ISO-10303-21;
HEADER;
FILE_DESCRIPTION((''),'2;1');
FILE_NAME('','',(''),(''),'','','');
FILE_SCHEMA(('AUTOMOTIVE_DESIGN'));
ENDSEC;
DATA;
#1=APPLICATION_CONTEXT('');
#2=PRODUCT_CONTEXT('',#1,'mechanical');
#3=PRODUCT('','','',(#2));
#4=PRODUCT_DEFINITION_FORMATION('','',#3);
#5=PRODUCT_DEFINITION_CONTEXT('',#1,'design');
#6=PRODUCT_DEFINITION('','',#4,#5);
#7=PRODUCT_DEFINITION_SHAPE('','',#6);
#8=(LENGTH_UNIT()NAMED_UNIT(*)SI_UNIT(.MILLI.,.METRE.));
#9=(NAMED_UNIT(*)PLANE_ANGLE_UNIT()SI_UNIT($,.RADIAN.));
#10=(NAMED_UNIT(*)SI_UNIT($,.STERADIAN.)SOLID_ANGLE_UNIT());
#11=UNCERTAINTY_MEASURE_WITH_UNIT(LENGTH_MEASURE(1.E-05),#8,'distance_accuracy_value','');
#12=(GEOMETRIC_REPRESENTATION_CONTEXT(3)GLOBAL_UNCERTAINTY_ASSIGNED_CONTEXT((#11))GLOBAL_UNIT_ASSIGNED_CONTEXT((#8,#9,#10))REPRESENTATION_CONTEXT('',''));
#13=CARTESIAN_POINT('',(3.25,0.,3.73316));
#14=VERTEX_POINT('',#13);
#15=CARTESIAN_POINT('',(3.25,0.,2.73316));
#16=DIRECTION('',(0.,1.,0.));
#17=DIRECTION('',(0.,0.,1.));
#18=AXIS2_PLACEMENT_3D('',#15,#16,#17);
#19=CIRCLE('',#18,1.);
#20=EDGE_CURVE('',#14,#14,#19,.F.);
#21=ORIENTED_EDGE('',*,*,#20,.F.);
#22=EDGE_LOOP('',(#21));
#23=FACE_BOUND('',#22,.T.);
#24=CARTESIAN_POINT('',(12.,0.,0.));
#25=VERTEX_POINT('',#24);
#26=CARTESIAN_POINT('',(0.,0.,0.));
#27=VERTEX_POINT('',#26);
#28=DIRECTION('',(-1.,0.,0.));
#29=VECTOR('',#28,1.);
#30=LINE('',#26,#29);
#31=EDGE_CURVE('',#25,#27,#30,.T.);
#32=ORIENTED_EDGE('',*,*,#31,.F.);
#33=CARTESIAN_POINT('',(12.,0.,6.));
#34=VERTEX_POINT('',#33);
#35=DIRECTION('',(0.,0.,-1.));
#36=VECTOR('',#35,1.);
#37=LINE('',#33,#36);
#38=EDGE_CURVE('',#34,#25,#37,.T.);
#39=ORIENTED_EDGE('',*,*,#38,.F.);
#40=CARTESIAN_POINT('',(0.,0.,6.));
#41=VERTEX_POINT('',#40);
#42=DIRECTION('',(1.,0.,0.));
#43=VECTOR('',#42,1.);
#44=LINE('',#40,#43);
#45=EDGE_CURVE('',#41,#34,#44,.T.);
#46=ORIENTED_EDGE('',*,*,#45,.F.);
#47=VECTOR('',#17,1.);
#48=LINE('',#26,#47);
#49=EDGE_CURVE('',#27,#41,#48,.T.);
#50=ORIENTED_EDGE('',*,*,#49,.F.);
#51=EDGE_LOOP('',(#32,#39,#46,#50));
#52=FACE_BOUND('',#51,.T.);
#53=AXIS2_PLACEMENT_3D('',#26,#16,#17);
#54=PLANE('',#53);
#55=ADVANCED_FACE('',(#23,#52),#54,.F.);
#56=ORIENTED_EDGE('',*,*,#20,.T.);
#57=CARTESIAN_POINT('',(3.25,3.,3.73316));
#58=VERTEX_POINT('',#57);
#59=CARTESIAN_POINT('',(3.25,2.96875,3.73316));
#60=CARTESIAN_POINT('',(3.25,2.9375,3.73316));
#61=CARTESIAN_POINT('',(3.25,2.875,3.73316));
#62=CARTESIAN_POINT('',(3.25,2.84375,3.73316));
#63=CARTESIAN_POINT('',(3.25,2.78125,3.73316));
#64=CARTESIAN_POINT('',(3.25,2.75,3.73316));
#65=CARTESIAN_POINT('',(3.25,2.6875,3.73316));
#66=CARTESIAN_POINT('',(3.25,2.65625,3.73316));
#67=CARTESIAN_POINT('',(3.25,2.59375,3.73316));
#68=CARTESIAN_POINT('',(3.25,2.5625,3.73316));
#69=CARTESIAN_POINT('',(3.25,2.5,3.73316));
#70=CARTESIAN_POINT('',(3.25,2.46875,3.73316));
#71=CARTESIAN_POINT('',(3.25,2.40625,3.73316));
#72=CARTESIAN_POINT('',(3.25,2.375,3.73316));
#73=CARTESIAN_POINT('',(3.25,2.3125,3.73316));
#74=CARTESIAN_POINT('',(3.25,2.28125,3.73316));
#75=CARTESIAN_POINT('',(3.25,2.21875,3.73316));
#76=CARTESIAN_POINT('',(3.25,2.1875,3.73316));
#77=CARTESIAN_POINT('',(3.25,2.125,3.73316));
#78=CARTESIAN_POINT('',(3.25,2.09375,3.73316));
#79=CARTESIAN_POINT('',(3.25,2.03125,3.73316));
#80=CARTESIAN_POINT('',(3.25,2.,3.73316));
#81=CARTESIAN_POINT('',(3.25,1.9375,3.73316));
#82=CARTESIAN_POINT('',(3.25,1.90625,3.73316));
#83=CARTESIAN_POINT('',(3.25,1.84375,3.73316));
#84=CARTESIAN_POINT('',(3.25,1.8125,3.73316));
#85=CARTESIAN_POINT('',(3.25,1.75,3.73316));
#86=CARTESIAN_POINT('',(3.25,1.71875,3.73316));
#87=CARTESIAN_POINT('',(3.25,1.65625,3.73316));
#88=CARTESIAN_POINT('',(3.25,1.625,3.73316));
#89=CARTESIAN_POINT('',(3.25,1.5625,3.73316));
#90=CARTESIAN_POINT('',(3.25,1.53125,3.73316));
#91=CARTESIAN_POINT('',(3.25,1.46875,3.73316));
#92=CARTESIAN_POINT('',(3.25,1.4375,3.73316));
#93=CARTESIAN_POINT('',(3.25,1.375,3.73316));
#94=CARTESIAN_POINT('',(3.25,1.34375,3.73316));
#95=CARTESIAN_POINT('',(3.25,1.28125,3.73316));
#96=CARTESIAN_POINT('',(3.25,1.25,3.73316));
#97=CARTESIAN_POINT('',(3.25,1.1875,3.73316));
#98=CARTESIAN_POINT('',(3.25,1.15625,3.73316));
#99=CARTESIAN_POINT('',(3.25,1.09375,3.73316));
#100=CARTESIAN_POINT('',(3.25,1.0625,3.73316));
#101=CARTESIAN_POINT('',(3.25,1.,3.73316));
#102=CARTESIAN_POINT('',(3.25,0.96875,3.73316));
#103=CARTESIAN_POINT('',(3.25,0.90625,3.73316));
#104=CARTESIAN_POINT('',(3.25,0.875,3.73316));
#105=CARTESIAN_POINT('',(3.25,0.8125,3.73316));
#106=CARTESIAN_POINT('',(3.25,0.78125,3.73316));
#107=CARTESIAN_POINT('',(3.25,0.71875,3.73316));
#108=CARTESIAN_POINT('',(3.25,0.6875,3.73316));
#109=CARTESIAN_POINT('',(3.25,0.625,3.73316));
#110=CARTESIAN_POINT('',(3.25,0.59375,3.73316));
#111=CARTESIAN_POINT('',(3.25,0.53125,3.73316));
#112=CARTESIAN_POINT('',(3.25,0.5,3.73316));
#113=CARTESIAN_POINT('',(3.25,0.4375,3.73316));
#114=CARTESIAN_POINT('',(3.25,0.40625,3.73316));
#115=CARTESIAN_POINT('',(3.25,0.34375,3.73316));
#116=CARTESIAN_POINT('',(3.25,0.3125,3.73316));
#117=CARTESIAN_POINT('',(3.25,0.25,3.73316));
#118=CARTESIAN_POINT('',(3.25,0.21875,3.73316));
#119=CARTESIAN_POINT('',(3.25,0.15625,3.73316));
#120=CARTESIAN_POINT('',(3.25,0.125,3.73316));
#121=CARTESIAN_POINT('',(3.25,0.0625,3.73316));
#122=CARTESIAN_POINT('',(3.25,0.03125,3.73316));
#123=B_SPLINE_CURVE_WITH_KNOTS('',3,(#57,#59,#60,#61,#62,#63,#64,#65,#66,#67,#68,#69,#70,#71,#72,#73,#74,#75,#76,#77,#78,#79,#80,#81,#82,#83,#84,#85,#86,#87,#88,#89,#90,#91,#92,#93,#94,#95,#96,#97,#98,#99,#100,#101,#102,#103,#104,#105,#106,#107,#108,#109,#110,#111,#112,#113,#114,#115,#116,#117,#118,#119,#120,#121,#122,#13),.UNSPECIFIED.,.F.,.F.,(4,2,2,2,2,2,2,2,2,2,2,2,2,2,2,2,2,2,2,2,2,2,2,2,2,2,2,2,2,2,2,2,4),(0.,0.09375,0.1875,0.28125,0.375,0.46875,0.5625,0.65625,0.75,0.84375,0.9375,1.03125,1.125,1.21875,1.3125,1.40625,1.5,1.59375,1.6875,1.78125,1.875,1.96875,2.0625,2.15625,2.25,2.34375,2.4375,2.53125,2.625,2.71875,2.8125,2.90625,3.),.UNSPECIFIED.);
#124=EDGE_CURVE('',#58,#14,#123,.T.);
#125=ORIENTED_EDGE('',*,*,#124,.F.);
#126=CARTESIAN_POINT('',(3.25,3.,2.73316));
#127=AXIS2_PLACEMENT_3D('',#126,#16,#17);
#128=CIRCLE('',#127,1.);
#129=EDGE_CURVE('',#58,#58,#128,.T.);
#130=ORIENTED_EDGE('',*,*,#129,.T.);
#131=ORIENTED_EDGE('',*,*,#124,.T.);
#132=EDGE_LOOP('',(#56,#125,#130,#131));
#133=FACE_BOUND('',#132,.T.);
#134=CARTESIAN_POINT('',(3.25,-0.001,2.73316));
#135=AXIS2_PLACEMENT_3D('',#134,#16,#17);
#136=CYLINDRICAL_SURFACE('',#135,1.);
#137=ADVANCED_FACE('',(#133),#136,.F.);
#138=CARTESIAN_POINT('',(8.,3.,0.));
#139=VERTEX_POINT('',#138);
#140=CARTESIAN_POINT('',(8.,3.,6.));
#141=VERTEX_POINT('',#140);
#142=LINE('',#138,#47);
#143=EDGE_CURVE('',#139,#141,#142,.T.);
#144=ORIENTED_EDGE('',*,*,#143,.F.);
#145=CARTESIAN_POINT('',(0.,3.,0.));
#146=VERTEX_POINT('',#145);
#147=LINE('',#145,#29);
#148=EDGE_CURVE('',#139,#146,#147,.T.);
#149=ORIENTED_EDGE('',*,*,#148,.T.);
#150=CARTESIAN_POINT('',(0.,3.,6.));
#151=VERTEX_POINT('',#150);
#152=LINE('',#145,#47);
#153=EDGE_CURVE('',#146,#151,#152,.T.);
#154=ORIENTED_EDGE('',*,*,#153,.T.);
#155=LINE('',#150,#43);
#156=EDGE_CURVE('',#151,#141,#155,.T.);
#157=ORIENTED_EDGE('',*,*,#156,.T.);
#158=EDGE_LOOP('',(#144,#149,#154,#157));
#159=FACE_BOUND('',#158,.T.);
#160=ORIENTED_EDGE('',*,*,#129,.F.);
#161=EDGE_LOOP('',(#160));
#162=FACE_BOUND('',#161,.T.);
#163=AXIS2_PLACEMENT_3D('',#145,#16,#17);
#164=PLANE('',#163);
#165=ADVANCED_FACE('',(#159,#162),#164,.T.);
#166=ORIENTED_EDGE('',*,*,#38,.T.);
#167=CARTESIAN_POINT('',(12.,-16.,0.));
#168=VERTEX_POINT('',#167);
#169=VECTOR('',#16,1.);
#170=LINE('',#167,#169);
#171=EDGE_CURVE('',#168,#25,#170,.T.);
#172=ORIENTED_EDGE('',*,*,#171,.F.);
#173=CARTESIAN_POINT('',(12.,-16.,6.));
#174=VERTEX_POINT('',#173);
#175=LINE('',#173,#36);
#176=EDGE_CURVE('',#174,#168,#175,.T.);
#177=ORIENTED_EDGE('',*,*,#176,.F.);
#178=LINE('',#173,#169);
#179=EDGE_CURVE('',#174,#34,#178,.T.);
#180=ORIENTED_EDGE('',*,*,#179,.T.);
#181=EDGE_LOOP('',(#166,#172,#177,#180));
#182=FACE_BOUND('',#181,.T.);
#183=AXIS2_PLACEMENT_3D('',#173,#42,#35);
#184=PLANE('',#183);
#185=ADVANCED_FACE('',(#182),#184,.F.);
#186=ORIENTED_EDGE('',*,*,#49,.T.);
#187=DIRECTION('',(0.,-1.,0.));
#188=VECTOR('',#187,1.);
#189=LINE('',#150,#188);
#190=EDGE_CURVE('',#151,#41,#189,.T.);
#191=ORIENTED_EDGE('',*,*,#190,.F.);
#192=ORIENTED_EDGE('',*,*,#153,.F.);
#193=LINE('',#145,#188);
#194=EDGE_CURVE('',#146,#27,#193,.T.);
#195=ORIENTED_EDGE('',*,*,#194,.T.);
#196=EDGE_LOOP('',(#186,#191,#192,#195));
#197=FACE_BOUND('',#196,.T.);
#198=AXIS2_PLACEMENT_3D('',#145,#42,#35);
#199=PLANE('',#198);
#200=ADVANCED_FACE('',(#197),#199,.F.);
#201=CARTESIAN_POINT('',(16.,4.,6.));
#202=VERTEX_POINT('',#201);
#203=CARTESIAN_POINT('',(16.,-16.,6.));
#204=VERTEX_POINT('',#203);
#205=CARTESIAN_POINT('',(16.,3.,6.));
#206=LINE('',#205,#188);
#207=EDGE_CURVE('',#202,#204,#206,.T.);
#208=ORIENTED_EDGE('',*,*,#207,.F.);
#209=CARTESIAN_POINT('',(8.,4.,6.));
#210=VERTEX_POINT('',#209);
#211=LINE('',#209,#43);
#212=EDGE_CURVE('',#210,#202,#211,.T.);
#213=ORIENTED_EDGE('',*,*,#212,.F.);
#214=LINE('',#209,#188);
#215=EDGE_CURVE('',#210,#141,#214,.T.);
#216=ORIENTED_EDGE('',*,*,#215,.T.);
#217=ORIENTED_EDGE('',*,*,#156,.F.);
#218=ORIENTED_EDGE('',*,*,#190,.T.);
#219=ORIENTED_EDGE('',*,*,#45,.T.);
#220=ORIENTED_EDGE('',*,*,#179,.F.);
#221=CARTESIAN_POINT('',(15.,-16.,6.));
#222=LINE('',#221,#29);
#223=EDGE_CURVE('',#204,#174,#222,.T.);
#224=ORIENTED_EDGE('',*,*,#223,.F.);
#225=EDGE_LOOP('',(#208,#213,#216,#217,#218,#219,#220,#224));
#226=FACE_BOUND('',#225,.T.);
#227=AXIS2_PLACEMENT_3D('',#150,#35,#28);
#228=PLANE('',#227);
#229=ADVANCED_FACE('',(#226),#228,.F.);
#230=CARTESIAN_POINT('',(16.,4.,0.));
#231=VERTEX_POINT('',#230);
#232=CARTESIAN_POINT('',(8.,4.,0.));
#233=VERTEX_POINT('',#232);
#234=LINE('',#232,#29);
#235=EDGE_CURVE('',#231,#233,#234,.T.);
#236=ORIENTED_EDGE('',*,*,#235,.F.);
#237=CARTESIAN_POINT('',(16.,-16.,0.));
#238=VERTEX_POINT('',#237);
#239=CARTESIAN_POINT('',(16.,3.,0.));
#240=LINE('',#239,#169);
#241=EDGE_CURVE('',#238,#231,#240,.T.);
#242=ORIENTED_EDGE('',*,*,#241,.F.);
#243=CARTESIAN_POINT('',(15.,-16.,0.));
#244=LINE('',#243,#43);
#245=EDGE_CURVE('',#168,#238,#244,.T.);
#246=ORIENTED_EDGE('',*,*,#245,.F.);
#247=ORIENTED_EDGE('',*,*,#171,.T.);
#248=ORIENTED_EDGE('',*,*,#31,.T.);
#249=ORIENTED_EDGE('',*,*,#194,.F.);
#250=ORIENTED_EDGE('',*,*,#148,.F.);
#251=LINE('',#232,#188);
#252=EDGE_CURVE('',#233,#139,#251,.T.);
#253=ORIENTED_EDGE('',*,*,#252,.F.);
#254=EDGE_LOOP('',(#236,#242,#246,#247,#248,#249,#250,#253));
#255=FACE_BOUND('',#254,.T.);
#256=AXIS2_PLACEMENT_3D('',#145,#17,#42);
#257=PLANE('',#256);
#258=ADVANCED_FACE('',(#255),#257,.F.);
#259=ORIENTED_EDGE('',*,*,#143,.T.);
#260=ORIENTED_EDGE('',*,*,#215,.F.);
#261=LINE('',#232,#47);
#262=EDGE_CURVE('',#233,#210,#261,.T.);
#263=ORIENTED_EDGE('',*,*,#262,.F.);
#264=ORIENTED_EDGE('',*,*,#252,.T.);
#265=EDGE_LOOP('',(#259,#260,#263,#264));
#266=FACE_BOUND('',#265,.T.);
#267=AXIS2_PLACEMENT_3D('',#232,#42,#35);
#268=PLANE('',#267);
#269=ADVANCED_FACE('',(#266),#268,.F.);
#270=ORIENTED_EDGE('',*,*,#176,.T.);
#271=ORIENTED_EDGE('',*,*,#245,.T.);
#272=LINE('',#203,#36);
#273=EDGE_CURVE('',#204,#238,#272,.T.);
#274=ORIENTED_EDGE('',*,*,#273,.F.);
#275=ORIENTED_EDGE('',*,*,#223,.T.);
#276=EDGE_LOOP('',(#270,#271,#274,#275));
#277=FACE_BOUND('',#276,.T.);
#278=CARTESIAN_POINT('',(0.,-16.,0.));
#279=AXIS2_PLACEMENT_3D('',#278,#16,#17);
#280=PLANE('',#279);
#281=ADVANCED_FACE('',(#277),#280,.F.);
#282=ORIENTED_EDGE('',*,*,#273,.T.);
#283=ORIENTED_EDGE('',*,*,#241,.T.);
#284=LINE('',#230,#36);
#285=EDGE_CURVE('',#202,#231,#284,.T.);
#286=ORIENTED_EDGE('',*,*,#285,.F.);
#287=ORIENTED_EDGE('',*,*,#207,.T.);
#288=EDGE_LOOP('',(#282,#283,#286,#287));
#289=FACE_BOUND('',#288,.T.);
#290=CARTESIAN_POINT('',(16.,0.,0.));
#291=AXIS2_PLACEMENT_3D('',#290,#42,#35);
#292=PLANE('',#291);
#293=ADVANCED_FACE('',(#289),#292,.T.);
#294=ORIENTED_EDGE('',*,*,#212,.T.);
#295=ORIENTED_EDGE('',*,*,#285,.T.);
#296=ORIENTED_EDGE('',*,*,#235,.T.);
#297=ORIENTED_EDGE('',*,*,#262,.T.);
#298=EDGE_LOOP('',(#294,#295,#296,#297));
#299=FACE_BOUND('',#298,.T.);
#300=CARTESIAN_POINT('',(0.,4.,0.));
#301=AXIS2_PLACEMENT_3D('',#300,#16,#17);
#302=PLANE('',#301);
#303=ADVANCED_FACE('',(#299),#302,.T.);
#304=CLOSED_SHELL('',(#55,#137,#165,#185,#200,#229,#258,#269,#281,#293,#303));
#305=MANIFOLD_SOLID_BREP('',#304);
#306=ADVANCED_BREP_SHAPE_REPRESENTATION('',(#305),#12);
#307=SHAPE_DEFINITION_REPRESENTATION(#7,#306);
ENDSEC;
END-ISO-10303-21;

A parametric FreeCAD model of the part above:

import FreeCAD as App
import Part
import Sketcher


def add_polygon(sketch, points):
    """Adds a closed chain of lines whose ends are joined by coincident constraints."""
    first, n = sketch.GeometryCount, len(points)
    for a, b in zip(points, points[1:] + points[:1]):
        sketch.addGeometry(Part.LineSegment(App.Vector(*a, 0), App.Vector(*b, 0)), False)
    for i in range(n):
        sketch.addConstraint(Sketcher.Constraint("Coincident", first + i, 2, first + (i + 1) % n, 1))

doc = App.newDocument("Part")
params = doc.addObject("Spreadsheet::Sheet", "Params")
for row, (alias, value) in enumerate([
    ("sketch1_width", "15 mm"),
    ("sketch1_height", "6 mm"),
    ("pad1_length", "3 mm"),
    ("sketch2_diameter", "2 mm"),
    ("sketch3_width", "3 mm"),
    ("sketch3_height", "6 mm"),
    ("pad2_length", "16 mm"),
    ("sketch4_width", "19 mm"),
    ("sketch4_height", "6 mm"),
    ("pad3_length", "1 mm"),
    ("sketch5_width", "8 mm"),
    ("sketch5_height", "6 mm"),
    ("pad4_length", "1 mm"),
], start=1):
    params.set(f"A{row}", alias)
    params.set(f"B{row}", "=" + value)
    params.setAlias(f"B{row}", alias)

body = doc.addObject("PartDesign::Body", "Body")

# Sketch on XZ plane
sketch1 = body.newObject("Sketcher::SketchObject", "Sketch")
sketch1.AttachmentSupport = (doc.getObject("XZ_Plane"), [""])
sketch1.MapMode = "FlatFace"
add_polygon(sketch1, [(0, 0), (0, 6), (15, 6), (15, 0)])  # lines 0-3
sketch1.addConstraint([
    Sketcher.Constraint("Vertical", 0),
    Sketcher.Constraint("Horizontal", 1),
    Sketcher.Constraint("Vertical", 2),
    Sketcher.Constraint("Horizontal", 3),
    Sketcher.Constraint("Coincident", 3, 2, -1, 1),
    Sketcher.Constraint("DistanceX", 1, 1, 1, 2, 15.0),
    Sketcher.Constraint("DistanceY", 0, 1, 0, 2, 6.0),
])
sketch1.setExpression("Constraints[9]", "Params.sketch1_width")
sketch1.setExpression("Constraints[10]", "Params.sketch1_height")
pad1 = body.newObject("PartDesign::Pad", "Pad")
pad1.Profile = sketch1
pad1.setExpression("Length", "Params.pad1_length")
pad1.Reversed = True

# Sketch on XZ plane
sketch2 = body.newObject("Sketcher::SketchObject", "Sketch001")
sketch2.AttachmentSupport = (doc.getObject("XZ_Plane"), [""])
sketch2.MapMode = "FlatFace"
sketch2.AttachmentOffset = App.Placement(App.Vector(0, 0, -3), App.Rotation())
sketch2.addGeometry(Part.Circle(App.Vector(3.2, 2.7, 0), App.Vector(0, 0, 1), 1), False)
sketch2.addConstraint([
    Sketcher.Constraint("Diameter", 0, 2.0),
    Sketcher.Constraint("DistanceX", -1, 1, 0, 3, 3.25),
    Sketcher.Constraint("DistanceY", -1, 1, 0, 3, 2.73316),
])
sketch2.setExpression("Constraints[0]", "Params.sketch2_diameter")
pocket1 = body.newObject("PartDesign::Pocket", "Pocket")
pocket1.Profile = sketch2
pocket1.Type = "UpToFirst"
pocket1.Reversed = True

# Sketch on XZ plane
sketch3 = body.newObject("Sketcher::SketchObject", "Sketch002")
sketch3.AttachmentSupport = (doc.getObject("XZ_Plane"), [""])
sketch3.MapMode = "FlatFace"
add_polygon(sketch3, [(12, 6), (12, 0), (15, 0), (15, 6)])  # lines 0-3
sketch3.addConstraint([
    Sketcher.Constraint("Vertical", 0),
    Sketcher.Constraint("Horizontal", 1),
    Sketcher.Constraint("Vertical", 2),
    Sketcher.Constraint("Horizontal", 3),
    Sketcher.Constraint("PointOnObject", 0, 2, -1),
    Sketcher.Constraint("DistanceX", 1, 1, 1, 2, 3.0),
    Sketcher.Constraint("DistanceY", 0, 2, 0, 1, 6.0),
    Sketcher.Constraint("DistanceX", -1, 1, 0, 2, 12.0),
])
sketch3.setExpression("Constraints[9]", "Params.sketch3_width")
sketch3.setExpression("Constraints[10]", "Params.sketch3_height")
pad2 = body.newObject("PartDesign::Pad", "Pad001")
pad2.Profile = sketch3
pad2.setExpression("Length", "Params.pad2_length")

# Sketch on YZ plane
sketch4 = body.newObject("Sketcher::SketchObject", "Sketch003")
sketch4.AttachmentSupport = (doc.getObject("YZ_Plane"), [""])
sketch4.MapMode = "FlatFace"
sketch4.AttachmentOffset = App.Placement(App.Vector(0, 0, 15), App.Rotation())
add_polygon(sketch4, [(3, 6), (-16, 6), (-16, 0), (3, 0)])  # lines 0-3
sketch4.addConstraint([
    Sketcher.Constraint("Horizontal", 0),
    Sketcher.Constraint("Vertical", 1),
    Sketcher.Constraint("Horizontal", 2),
    Sketcher.Constraint("Vertical", 3),
    Sketcher.Constraint("PointOnObject", 1, 2, -1),
    Sketcher.Constraint("DistanceX", 0, 2, 0, 1, 19.0),
    Sketcher.Constraint("DistanceY", 1, 2, 1, 1, 6.0),
    Sketcher.Constraint("DistanceX", 0, 2, -1, 1, 16.0),
])
sketch4.setExpression("Constraints[9]", "Params.sketch4_width")
sketch4.setExpression("Constraints[10]", "Params.sketch4_height")
pad3 = body.newObject("PartDesign::Pad", "Pad002")
pad3.Profile = sketch4
pad3.setExpression("Length", "Params.pad3_length")

# Sketch on XZ plane
sketch5 = body.newObject("Sketcher::SketchObject", "Sketch004")
sketch5.AttachmentSupport = (doc.getObject("XZ_Plane"), [""])
sketch5.MapMode = "FlatFace"
sketch5.AttachmentOffset = App.Placement(App.Vector(0, 0, -3), App.Rotation())
add_polygon(sketch5, [(8, 0), (8, 6), (16, 6), (16, 0)])  # lines 0-3
sketch5.addConstraint([
    Sketcher.Constraint("Vertical", 0),
    Sketcher.Constraint("Horizontal", 1),
    Sketcher.Constraint("Vertical", 2),
    Sketcher.Constraint("Horizontal", 3),
    Sketcher.Constraint("PointOnObject", 2, 2, -1),
    Sketcher.Constraint("DistanceX", 1, 1, 1, 2, 8.0),
    Sketcher.Constraint("DistanceY", 0, 1, 0, 2, 6.0),
    Sketcher.Constraint("DistanceX", -1, 1, 0, 2, 8.0),
])
sketch5.setExpression("Constraints[9]", "Params.sketch5_width")
sketch5.setExpression("Constraints[10]", "Params.sketch5_height")
pad4 = body.newObject("PartDesign::Pad", "Pad003")
pad4.Profile = sketch5
pad4.setExpression("Length", "Params.pad4_length")
pad4.Reversed = True

doc.recompute()
